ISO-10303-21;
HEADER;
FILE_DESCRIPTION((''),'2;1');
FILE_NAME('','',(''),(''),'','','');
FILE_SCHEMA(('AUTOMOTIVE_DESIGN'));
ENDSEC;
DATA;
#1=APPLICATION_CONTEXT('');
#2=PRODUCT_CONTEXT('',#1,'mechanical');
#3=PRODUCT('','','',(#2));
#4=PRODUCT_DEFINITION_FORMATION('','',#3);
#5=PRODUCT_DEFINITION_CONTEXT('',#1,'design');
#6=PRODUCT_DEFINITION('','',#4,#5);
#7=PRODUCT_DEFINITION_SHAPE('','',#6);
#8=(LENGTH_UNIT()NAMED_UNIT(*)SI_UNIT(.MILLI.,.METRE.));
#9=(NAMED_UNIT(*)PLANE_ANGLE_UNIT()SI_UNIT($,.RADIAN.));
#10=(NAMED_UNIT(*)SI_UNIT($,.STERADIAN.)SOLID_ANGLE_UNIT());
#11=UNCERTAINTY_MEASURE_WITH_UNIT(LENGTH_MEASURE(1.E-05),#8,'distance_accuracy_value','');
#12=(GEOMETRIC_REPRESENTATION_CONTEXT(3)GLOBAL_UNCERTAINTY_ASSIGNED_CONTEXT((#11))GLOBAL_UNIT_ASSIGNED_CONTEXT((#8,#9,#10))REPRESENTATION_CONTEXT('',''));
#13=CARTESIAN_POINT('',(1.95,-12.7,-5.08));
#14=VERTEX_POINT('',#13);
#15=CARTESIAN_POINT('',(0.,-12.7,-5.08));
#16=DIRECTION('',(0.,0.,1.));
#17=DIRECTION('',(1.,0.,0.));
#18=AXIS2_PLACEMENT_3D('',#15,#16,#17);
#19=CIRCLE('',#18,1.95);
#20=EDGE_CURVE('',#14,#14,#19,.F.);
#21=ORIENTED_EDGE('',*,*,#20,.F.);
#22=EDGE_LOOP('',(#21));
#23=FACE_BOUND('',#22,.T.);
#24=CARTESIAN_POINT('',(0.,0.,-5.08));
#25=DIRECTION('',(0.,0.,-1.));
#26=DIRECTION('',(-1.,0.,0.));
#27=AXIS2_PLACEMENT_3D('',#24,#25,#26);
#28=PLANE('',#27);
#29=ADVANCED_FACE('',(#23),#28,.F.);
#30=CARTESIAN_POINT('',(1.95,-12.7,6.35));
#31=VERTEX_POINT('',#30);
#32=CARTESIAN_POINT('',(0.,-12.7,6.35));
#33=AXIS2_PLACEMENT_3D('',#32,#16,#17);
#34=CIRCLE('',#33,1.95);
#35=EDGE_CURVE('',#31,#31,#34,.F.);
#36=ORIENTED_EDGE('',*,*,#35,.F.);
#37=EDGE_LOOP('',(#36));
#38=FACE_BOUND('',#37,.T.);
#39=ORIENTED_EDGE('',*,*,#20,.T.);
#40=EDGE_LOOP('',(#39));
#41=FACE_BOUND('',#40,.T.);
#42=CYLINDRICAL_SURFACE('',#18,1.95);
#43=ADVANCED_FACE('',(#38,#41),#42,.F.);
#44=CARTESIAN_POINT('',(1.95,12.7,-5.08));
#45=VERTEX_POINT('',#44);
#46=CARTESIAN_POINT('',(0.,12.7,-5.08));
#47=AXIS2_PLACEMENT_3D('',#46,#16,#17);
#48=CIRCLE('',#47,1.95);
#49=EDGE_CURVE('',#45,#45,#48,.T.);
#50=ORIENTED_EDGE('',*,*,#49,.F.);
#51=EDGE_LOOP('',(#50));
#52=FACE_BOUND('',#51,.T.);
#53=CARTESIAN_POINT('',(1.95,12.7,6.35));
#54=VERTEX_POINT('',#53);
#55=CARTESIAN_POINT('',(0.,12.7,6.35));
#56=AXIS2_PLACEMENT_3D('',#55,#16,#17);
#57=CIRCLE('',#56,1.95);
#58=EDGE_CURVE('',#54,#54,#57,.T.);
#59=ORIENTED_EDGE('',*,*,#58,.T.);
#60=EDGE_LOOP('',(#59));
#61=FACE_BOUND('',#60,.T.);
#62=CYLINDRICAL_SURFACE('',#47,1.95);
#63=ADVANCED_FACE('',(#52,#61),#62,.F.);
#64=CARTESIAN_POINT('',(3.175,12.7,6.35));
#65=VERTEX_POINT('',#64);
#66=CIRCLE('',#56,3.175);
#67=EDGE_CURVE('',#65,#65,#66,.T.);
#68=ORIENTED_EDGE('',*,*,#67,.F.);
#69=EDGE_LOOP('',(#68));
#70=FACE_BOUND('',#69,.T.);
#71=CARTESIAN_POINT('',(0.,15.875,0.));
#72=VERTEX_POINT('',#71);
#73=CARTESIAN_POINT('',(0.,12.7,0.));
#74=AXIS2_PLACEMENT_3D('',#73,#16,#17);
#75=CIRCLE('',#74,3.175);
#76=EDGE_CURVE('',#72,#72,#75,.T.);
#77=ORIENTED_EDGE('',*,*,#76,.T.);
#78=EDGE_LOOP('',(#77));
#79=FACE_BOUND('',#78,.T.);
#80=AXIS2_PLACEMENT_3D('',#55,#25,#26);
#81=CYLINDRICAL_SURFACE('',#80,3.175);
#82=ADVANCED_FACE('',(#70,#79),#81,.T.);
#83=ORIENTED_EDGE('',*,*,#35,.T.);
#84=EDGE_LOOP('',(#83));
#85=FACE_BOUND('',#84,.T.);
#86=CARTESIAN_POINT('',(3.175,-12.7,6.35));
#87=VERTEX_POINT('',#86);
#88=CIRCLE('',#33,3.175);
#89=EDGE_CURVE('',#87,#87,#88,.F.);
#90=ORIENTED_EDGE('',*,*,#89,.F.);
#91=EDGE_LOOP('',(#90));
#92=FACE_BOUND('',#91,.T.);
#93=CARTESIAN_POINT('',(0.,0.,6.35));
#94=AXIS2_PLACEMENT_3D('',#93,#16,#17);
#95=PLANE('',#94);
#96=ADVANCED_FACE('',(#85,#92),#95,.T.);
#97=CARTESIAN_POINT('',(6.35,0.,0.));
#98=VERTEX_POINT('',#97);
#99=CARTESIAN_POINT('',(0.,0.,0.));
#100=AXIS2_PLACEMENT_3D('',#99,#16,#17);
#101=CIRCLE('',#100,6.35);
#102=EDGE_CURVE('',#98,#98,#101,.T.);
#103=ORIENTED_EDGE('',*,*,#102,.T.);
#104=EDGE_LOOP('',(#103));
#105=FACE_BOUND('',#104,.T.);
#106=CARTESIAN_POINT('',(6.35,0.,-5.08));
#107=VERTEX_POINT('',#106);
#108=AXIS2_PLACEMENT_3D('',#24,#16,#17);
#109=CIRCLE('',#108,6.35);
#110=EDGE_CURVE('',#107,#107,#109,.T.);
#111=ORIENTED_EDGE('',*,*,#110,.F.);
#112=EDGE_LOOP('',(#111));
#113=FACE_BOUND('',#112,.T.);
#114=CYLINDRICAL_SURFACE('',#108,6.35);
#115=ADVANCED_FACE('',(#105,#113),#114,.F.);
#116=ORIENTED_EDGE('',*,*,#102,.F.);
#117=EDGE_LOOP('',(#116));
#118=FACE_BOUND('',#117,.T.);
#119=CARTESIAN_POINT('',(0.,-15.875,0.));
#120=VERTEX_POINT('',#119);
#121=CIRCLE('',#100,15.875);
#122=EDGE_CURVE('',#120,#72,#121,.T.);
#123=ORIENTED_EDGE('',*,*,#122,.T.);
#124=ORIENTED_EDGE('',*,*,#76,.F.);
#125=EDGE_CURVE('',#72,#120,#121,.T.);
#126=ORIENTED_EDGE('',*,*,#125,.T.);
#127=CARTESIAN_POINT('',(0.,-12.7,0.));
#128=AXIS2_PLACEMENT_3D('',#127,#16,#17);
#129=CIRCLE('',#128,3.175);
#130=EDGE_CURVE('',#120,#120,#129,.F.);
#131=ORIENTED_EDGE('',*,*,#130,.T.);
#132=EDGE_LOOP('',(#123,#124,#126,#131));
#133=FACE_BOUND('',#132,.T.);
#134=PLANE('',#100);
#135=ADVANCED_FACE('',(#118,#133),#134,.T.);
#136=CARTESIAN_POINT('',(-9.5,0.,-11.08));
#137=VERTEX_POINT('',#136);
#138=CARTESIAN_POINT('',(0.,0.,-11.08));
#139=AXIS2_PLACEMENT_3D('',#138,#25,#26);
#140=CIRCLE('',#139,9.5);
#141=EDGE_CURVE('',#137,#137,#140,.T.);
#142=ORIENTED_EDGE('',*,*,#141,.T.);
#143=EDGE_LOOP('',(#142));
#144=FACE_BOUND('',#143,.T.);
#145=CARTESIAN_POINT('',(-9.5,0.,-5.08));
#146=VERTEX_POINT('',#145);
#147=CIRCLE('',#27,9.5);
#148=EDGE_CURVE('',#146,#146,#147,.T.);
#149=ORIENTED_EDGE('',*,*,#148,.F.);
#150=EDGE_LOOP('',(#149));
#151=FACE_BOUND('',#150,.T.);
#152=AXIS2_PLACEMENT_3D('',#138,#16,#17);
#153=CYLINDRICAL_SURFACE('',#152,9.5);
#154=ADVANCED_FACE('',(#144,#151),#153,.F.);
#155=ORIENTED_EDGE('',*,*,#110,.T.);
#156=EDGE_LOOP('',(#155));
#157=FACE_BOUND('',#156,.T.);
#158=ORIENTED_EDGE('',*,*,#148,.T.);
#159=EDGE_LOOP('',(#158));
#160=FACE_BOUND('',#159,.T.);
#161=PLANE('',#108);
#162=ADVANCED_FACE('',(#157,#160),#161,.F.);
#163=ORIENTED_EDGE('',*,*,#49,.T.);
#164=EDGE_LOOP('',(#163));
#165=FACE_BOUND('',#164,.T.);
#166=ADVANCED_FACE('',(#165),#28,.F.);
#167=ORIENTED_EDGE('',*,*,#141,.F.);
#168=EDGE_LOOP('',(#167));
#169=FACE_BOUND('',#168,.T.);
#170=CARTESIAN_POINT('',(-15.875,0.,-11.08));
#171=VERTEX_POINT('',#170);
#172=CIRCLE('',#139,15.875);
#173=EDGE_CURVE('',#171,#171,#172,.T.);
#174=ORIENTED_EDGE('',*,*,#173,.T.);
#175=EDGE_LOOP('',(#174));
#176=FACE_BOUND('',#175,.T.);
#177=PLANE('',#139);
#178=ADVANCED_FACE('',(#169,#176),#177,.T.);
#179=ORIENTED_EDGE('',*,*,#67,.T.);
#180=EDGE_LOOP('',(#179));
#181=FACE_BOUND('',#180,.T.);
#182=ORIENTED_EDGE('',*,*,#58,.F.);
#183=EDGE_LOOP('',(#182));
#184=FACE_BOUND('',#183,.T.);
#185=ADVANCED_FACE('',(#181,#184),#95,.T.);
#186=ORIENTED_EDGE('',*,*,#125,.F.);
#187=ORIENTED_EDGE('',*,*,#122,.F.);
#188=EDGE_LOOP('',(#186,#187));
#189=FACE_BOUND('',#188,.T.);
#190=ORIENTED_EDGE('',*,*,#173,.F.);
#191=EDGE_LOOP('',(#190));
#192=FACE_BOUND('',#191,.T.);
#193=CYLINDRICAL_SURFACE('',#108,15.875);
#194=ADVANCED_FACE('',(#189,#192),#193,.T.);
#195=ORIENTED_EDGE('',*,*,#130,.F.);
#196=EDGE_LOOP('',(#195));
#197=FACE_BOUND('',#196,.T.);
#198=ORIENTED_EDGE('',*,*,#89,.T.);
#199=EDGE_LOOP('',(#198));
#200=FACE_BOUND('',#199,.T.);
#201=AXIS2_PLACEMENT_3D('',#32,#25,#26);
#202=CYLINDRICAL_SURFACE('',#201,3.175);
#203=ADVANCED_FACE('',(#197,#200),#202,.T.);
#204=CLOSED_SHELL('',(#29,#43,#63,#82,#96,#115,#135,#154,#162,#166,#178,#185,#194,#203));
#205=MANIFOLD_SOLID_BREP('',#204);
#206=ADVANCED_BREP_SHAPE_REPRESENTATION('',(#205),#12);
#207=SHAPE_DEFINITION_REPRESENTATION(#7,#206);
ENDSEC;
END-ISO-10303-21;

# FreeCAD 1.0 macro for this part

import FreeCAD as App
import Part
import Sketcher
Q = App.Units.Quantity

doc = App.newDocument("Part")
body = doc.addObject("PartDesign::Body", "Body")

sketch1 = body.newObject("Sketcher::SketchObject", "Sketch")
sketch1.AttachmentSupport = (doc.getObject("XY_Plane"), [""])
sketch1.MapMode = "FlatFace"
sketch1.addGeometry([
    Part.Circle(App.Vector(0, 0, 0), App.Vector(0, 0, 1), 15.9),
    Part.Circle(App.Vector(0, -12.7, 0), App.Vector(0, 0, 1), 1.9),
    Part.Circle(App.Vector(0, 0, 0), App.Vector(0, 0, 1), 6.3),
    Part.Circle(App.Vector(0, 12.7, 0), App.Vector(0, 0, 1), 1.9),
], False)
sketch1.addConstraint([
    Sketcher.Constraint("Coincident", 0, 3, -1, 1),
    Sketcher.Constraint("Coincident", 2, 3, -1, 1),
    Sketcher.Constraint("Equal", 1, 3),
    Sketcher.Constraint("Symmetric", 1, 3, 3, 3, -1, 1),
    Sketcher.Constraint("PointOnObject", 1, 3, -2),
    Sketcher.Constraint("Diameter", 2, Q("0.5 in")),
    Sketcher.Constraint("Diameter", 0, Q("1.25 in")),
    Sketcher.Constraint("DistanceY", 1, 3, 3, 3, Q("1 in")),
    Sketcher.Constraint("Diameter", 1, Q("3.9 mm")),
])
pad1 = body.newObject("PartDesign::Pad", "Pad")
pad1.Profile = sketch1
pad1.Length = Q("0.2 in")
pad1.Reversed = True

sketch2 = body.newObject("Sketcher::SketchObject", "Sketch001")
sketch2.AttachmentSupport = (doc.getObject("XY_Plane"), [""])
sketch2.MapMode = "FlatFace"
sketch2.AttachmentOffset = App.Placement(App.Vector(0, 0, 0.25 * 25.4), App.Rotation())
sketch2.addGeometry([
    Part.Circle(App.Vector(0, 12.7, 0), App.Vector(0, 0, 1), 3.2),
    Part.Circle(App.Vector(0, 12.7, 0), App.Vector(0, 0, 1), 1.9),
    Part.Circle(App.Vector(0, -12.7, 0), App.Vector(0, 0, 1), 3.2),
    Part.Circle(App.Vector(0, -12.7, 0), App.Vector(0, 0, 1), 1.9),
], False)
sketch2.addConstraint([
    Sketcher.Constraint("Coincident", 1, 3, 0, 3),
    Sketcher.Constraint("Coincident", 3, 3, 2, 3),
    Sketcher.Constraint("Equal", 0, 2),
    Sketcher.Constraint("Equal", 1, 3),
    Sketcher.Constraint("Symmetric", 0, 3, 2, 3, -1, 1),
    Sketcher.Constraint("PointOnObject", 0, 3, -2),
    Sketcher.Constraint("Diameter", 0, Q("0.25 in")),
    Sketcher.Constraint("DistanceY", 2, 3, 0, 3, Q("1 in")),
    Sketcher.Constraint("Diameter", 1, Q("3.9 mm")),
])
pad2 = body.newObject("PartDesign::Pad", "Pad001")
pad2.Profile = sketch2
pad2.Length = Q("0.25 in")
pad2.Reversed = True

sketch3 = body.newObject("Sketcher::SketchObject", "Sketch002")
sketch3.AttachmentSupport = (doc.getObject("XY_Plane"), [""])
sketch3.MapMode = "FlatFace"
sketch3.AttachmentOffset = App.Placement(App.Vector(0, 0, -0.2 * 25.4), App.Rotation())
sketch3.addGeometry([
    Part.Circle(App.Vector(0, 0, 0), App.Vector(0, 0, 1), 16),
    Part.Circle(App.Vector(0, 0, 0), App.Vector(0, 0, 1), 10),
], False)
sketch3.addConstraint([
    Sketcher.Constraint("Coincident", 0, 3, -1, 1),
    Sketcher.Constraint("Coincident", 1, 3, -1, 1),
    Sketcher.Constraint("Diameter", 0, Q("1.25 in")),
    Sketcher.Constraint("Diameter", 1, Q("19 mm")),
])
pad3 = body.newObject("PartDesign::Pad", "Pad002")
pad3.Profile = sketch3
pad3.Length = 6
pad3.Reversed = True

doc.recompute()
